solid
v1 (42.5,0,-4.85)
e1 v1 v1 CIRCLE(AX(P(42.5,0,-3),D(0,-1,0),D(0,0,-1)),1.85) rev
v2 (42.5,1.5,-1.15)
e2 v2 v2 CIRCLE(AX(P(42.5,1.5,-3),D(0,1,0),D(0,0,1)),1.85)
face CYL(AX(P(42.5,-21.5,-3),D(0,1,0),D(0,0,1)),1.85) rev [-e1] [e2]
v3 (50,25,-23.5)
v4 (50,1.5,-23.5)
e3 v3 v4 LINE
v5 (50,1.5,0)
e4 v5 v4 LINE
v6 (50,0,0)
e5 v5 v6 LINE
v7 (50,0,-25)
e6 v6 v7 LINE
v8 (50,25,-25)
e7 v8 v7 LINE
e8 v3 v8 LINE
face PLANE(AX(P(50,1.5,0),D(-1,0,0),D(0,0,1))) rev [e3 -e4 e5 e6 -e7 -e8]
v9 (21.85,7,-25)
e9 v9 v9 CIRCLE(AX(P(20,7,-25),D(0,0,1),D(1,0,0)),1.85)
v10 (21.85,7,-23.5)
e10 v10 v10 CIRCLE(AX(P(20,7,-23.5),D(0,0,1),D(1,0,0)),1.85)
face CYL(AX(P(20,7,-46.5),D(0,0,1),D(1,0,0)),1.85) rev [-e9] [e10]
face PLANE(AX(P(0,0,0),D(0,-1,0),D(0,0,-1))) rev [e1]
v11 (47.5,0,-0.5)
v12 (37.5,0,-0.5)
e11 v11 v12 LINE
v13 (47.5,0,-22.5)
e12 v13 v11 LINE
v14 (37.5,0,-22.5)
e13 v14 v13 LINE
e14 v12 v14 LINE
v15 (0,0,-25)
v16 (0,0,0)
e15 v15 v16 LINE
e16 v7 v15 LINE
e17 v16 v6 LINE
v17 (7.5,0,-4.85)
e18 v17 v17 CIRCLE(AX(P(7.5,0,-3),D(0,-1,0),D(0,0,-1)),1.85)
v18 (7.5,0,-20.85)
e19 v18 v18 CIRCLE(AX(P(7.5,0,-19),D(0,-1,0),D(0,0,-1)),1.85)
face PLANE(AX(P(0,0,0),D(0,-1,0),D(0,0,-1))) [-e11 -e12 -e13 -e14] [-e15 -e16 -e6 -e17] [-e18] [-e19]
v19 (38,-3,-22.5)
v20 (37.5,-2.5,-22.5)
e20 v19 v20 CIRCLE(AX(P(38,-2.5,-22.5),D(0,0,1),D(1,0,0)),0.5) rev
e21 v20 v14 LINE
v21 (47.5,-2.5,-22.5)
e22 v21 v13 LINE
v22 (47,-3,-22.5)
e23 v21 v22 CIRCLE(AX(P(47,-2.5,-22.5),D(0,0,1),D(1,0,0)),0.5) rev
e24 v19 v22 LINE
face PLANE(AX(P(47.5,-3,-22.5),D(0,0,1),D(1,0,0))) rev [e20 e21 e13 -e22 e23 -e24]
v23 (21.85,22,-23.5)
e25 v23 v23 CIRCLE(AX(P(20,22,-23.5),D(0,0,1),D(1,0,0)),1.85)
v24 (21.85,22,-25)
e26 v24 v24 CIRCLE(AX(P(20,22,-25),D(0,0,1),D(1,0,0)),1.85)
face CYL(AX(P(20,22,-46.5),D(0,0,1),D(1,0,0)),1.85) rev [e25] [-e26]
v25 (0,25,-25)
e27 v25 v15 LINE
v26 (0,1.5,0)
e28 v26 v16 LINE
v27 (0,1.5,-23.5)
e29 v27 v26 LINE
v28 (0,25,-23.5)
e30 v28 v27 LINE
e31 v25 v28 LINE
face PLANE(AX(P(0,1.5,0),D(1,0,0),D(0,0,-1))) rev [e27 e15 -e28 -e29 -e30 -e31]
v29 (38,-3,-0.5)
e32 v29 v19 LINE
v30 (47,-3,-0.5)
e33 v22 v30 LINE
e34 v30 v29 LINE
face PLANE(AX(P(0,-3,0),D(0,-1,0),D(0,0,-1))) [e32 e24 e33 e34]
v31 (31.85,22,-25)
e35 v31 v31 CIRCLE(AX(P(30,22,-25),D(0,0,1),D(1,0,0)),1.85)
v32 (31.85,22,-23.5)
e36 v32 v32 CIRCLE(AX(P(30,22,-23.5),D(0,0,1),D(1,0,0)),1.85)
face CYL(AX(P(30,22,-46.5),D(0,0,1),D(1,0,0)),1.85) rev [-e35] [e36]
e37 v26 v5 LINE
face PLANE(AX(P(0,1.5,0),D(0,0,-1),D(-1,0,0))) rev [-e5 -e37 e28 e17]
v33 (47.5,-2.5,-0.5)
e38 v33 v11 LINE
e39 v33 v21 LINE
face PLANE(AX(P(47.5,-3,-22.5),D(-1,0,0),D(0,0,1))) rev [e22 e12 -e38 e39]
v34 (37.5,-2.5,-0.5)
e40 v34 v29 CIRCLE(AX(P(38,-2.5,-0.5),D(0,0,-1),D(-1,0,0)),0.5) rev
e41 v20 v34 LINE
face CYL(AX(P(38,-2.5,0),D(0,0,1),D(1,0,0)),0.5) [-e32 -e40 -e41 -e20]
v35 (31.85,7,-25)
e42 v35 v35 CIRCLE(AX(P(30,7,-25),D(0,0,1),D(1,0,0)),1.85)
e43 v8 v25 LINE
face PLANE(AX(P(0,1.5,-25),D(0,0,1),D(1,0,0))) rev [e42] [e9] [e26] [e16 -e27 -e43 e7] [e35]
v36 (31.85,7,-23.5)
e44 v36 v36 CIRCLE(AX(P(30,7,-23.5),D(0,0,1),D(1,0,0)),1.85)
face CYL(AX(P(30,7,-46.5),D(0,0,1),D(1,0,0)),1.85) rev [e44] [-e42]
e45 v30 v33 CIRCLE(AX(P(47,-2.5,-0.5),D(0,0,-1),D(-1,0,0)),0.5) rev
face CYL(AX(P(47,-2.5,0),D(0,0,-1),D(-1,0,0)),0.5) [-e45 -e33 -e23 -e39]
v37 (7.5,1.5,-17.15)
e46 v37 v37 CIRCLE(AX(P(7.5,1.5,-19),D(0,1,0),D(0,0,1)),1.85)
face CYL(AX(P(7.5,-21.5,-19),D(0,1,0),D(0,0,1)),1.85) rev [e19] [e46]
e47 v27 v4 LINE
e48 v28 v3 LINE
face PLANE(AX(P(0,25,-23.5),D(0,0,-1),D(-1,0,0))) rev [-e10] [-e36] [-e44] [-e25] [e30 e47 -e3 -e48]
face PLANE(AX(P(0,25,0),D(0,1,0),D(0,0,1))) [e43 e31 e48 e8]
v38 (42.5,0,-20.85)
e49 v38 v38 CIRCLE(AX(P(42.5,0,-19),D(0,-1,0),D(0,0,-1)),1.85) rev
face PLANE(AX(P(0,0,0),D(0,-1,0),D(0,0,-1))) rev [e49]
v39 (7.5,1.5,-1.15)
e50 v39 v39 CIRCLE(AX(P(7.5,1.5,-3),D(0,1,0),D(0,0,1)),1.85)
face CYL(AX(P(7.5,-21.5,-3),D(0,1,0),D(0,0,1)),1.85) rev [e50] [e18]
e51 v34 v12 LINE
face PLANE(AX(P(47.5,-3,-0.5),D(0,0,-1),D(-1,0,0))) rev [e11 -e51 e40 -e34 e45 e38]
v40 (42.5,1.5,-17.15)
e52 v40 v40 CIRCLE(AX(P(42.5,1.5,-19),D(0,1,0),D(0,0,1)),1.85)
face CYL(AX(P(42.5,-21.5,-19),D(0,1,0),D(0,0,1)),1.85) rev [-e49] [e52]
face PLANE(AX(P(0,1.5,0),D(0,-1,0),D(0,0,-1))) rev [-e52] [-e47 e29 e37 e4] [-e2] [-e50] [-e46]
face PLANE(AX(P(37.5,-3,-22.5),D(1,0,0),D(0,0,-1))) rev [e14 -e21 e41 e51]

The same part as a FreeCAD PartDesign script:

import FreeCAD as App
import Part
import Sketcher
Q = App.Units.Quantity


def edges_at(feature, points):
    """Names of the edges that pass closest to the given points."""
    edges = feature.Shape.Edges
    near = lambda p: min(range(len(edges)), key=lambda i: edges[i].distToShape(Part.Vertex(*p))[0])
    return sorted({f"Edge{near(p) + 1}" for p in points})

doc = App.newDocument("Part")
body = doc.addObject("PartDesign::Body", "Body")

# Sketch on XZ plane
sketch1 = doc.addObject("Sketcher::SketchObject", "Sketch")
body.addObject(sketch1)
sketch1.AttachmentSupport = (doc.XZ_Plane, [""])
sketch1.MapMode = "FlatFace"
sketch1.addGeometry(Part.LineSegment(App.Vector(0, -25, 0), App.Vector(0, 0, 0)), False)
sketch1.addGeometry(Part.LineSegment(App.Vector(0, 0, 0), App.Vector(50, 0, 0)), False)
sketch1.addGeometry(Part.LineSegment(App.Vector(50, 0, 0), App.Vector(50, -25, 0)), False)
sketch1.addGeometry(Part.LineSegment(App.Vector(50, -25, 0), App.Vector(0, -25, 0)), False)
sketch1.addConstraint(Sketcher.Constraint("Coincident", 0, 2, 1, 1))
sketch1.addConstraint(Sketcher.Constraint("Coincident", 1, 2, 2, 1))
sketch1.addConstraint(Sketcher.Constraint("Coincident", 2, 2, 3, 1))
sketch1.addConstraint(Sketcher.Constraint("Coincident", 3, 2, 0, 1))
sketch1.addConstraint(Sketcher.Constraint("Vertical", 0))
sketch1.addConstraint(Sketcher.Constraint("Horizontal", 1))
sketch1.addConstraint(Sketcher.Constraint("Vertical", 2))
sketch1.addConstraint(Sketcher.Constraint("Horizontal", 3))
sketch1.addConstraint(Sketcher.Constraint("Coincident", 0, 2, -1, 1))
sketch1.addConstraint(Sketcher.Constraint("DistanceX", 1, 1, 1, 2, Q("50 mm")))
sketch1.addConstraint(Sketcher.Constraint("DistanceY", 0, 1, 0, 2, Q("25 mm")))
pad1 = doc.addObject("PartDesign::Pad", "Pad")
body.addObject(pad1)
pad1.Profile = sketch1
pad1.Length = 1.5
pad1.Reversed = True

# Sketch on XZ plane
sketch2 = doc.addObject("Sketcher::SketchObject", "Sketch001")
body.addObject(sketch2)
sketch2.AttachmentSupport = (doc.XZ_Plane, [""])
sketch2.MapMode = "FlatFace"
sketch2.AttachmentOffset = App.Placement(App.Vector(0, 0, -1.5), App.Rotation())
sketch2.addGeometry(Part.LineSegment(App.Vector(0, -25, 0), App.Vector(0, -23.5, 0)), False)
sketch2.addGeometry(Part.LineSegment(App.Vector(0, -23.5, 0), App.Vector(50, -23.5, 0)), False)
sketch2.addGeometry(Part.LineSegment(App.Vector(50, -23.5, 0), App.Vector(50, -25, 0)), False)
sketch2.addGeometry(Part.LineSegment(App.Vector(50, -25, 0), App.Vector(0, -25, 0)), False)
sketch2.addConstraint(Sketcher.Constraint("Coincident", 0, 2, 1, 1))
sketch2.addConstraint(Sketcher.Constraint("Coincident", 1, 2, 2, 1))
sketch2.addConstraint(Sketcher.Constraint("Coincident", 2, 2, 3, 1))
sketch2.addConstraint(Sketcher.Constraint("Coincident", 3, 2, 0, 1))
sketch2.addConstraint(Sketcher.Constraint("Vertical", 0))
sketch2.addConstraint(Sketcher.Constraint("Horizontal", 1))
sketch2.addConstraint(Sketcher.Constraint("Vertical", 2))
sketch2.addConstraint(Sketcher.Constraint("Horizontal", 3))
sketch2.addConstraint(Sketcher.Constraint("PointOnObject", 0, 2, -2))
sketch2.addConstraint(Sketcher.Constraint("DistanceX", 1, 1, 1, 2, Q("50 mm")))
sketch2.addConstraint(Sketcher.Constraint("DistanceY", 0, 1, 0, 2, Q("1.5 mm")))
sketch2.addConstraint(Sketcher.Constraint("DistanceY", 2, 2, -1, 1, Q("25 mm")))
pad2 = doc.addObject("PartDesign::Pad", "Pad001")
body.addObject(pad2)
pad2.Profile = sketch2
pad2.Length = 23.5
pad2.Reversed = True

# Sketch on XY plane
sketch3 = doc.addObject("Sketcher::SketchObject", "Sketch002")
body.addObject(sketch3)
sketch3.AttachmentSupport = (doc.XY_Plane, [""])
sketch3.MapMode = "FlatFace"
sketch3.AttachmentOffset = App.Placement(App.Vector(0, 0, -23.5), App.Rotation())
sketch3.addGeometry(Part.Circle(App.Vector(20, 22, 0), App.Vector(0, 0, 1), 1.9), False)
sketch3.addGeometry(Part.Circle(App.Vector(30, 22, 0), App.Vector(0, 0, 1), 1.9), False)
sketch3.addGeometry(Part.Circle(App.Vector(30, 7, 0), App.Vector(0, 0, 1), 1.9), False)
sketch3.addGeometry(Part.Circle(App.Vector(20, 7, 0), App.Vector(0, 0, 1), 1.9), False)
sketch3.addConstraint(Sketcher.Constraint("Equal", 0, 1))
sketch3.addConstraint(Sketcher.Constraint("Equal", 1, 2))
sketch3.addConstraint(Sketcher.Constraint("Equal", 2, 3))
sketch3.addConstraint(Sketcher.Constraint("Horizontal", 0, 3, 1, 3))
sketch3.addConstraint(Sketcher.Constraint("Horizontal", 2, 3, 3, 3))
sketch3.addConstraint(Sketcher.Constraint("Vertical", 1, 3, 2, 3))
sketch3.addConstraint(Sketcher.Constraint("Vertical", 0, 3, 3, 3))
sketch3.addConstraint(Sketcher.Constraint("Diameter", 0, Q("3.7 mm")))
sketch3.addConstraint(Sketcher.Constraint("DistanceX", -1, 1, 0, 3, Q("20 mm")))
sketch3.addConstraint(Sketcher.Constraint("DistanceY", -1, 1, 0, 3, Q("22 mm")))
sketch3.addConstraint(Sketcher.Constraint("DistanceX", -1, 1, 1, 3, Q("30 mm")))
sketch3.addConstraint(Sketcher.Constraint("DistanceY", -1, 1, 2, 3, Q("7 mm")))
pocket1 = doc.addObject("PartDesign::Pocket", "Pocket")
body.addObject(pocket1)
pocket1.Profile = sketch3
pocket1.Length = 23

# Sketch on XZ plane
sketch4 = doc.addObject("Sketcher::SketchObject", "Sketch003")
body.addObject(sketch4)
sketch4.AttachmentSupport = (doc.XZ_Plane, [""])
sketch4.MapMode = "FlatFace"
sketch4.AttachmentOffset = App.Placement(App.Vector(0, 0, -1.5), App.Rotation())
sketch4.addGeometry(Part.Circle(App.Vector(7.5, -3, 0), App.Vector(0, 0, 1), 1.9), False)
sketch4.addGeometry(Part.Circle(App.Vector(7.5, -19, 0), App.Vector(0, 0, 1), 1.9), False)
sketch4.addGeometry(Part.Circle(App.Vector(42.5, -3, 0), App.Vector(0, 0, 1), 1.9), False)
sketch4.addGeometry(Part.Circle(App.Vector(42.5, -19, 0), App.Vector(0, 0, 1), 1.9), False)
sketch4.addConstraint(Sketcher.Constraint("Equal", 0, 1))
sketch4.addConstraint(Sketcher.Constraint("Equal", 1, 2))
sketch4.addConstraint(Sketcher.Constraint("Equal", 2, 3))
sketch4.addConstraint(Sketcher.Constraint("Horizontal", 0, 3, 2, 3))
sketch4.addConstraint(Sketcher.Constraint("Horizontal", 1, 3, 3, 3))
sketch4.addConstraint(Sketcher.Constraint("Vertical", 0, 3, 1, 3))
sketch4.addConstraint(Sketcher.Constraint("Vertical", 2, 3, 3, 3))
sketch4.addConstraint(Sketcher.Constraint("Diameter", 0, Q("3.7 mm")))
sketch4.addConstraint(Sketcher.Constraint("DistanceY", 0, 3, -1, 1, Q("3 mm")))
sketch4.addConstraint(Sketcher.Constraint("DistanceY", 1, 3, -1, 1, Q("19 mm")))
sketch4.addConstraint(Sketcher.Constraint("DistanceX", 0, 3, 2, 3, Q("35 mm")))
sketch4.addConstraint(Sketcher.Constraint("DistanceX", -1, 1, 0, 3, Q("7.5 mm")))
pocket2 = doc.addObject("PartDesign::Pocket", "Pocket001")
body.addObject(pocket2)
pocket2.Profile = sketch4
pocket2.Length = 23
pocket2.Reversed = True

# Sketch on XZ plane
sketch5 = doc.addObject("Sketcher::SketchObject", "Sketch004")
body.addObject(sketch5)
sketch5.AttachmentSupport = (doc.XZ_Plane, [""])
sketch5.MapMode = "FlatFace"
sketch5.addGeometry(Part.LineSegment(App.Vector(38, 0, 0), App.Vector(38, -22, 0)), False)
sketch5.addGeometry(Part.LineSegment(App.Vector(38, -22, 0), App.Vector(48, -22, 0)), False)
sketch5.addGeometry(Part.LineSegment(App.Vector(48, -22, 0), App.Vector(48, 0, 0)), False)
sketch5.addGeometry(Part.LineSegment(App.Vector(48, 0, 0), App.Vector(38, 0, 0)), False)
sketch5.addConstraint(Sketcher.Constraint("Coincident", 0, 2, 1, 1))
sketch5.addConstraint(Sketcher.Constraint("Coincident", 1, 2, 2, 1))
sketch5.addConstraint(Sketcher.Constraint("Coincident", 2, 2, 3, 1))
sketch5.addConstraint(Sketcher.Constraint("Coincident", 3, 2, 0, 1))
sketch5.addConstraint(Sketcher.Constraint("Vertical", 0))
sketch5.addConstraint(Sketcher.Constraint("Horizontal", 1))
sketch5.addConstraint(Sketcher.Constraint("Vertical", 2))
sketch5.addConstraint(Sketcher.Constraint("Horizontal", 3))
sketch5.addConstraint(Sketcher.Constraint("DistanceX", 1, 1, 1, 2, Q("10 mm")))
sketch5.addConstraint(Sketcher.Constraint("DistanceY", 0, 2, 0, 1, Q("22 mm")))
sketch5.addConstraint(Sketcher.Constraint("DistanceX", -1, 1, 0, 2, Q("37.5 mm")))
sketch5.addConstraint(Sketcher.Constraint("DistanceY", 0, 2, -1, 1, Q("22.5 mm")))
pad3 = doc.addObject("PartDesign::Pad", "Pad002")
body.addObject(pad3)
pad3.Profile = sketch5
pad3.Length = 3
doc.recompute()

fillet = doc.addObject("PartDesign::Fillet", "Fillet")
body.addObject(fillet)
fillet.Base = (pad3, edges_at(pad3, [(47.5, -3, -11.5), (37.5, -3, -11.5)]))
fillet.Radius = 0.5

doc.recompute()
